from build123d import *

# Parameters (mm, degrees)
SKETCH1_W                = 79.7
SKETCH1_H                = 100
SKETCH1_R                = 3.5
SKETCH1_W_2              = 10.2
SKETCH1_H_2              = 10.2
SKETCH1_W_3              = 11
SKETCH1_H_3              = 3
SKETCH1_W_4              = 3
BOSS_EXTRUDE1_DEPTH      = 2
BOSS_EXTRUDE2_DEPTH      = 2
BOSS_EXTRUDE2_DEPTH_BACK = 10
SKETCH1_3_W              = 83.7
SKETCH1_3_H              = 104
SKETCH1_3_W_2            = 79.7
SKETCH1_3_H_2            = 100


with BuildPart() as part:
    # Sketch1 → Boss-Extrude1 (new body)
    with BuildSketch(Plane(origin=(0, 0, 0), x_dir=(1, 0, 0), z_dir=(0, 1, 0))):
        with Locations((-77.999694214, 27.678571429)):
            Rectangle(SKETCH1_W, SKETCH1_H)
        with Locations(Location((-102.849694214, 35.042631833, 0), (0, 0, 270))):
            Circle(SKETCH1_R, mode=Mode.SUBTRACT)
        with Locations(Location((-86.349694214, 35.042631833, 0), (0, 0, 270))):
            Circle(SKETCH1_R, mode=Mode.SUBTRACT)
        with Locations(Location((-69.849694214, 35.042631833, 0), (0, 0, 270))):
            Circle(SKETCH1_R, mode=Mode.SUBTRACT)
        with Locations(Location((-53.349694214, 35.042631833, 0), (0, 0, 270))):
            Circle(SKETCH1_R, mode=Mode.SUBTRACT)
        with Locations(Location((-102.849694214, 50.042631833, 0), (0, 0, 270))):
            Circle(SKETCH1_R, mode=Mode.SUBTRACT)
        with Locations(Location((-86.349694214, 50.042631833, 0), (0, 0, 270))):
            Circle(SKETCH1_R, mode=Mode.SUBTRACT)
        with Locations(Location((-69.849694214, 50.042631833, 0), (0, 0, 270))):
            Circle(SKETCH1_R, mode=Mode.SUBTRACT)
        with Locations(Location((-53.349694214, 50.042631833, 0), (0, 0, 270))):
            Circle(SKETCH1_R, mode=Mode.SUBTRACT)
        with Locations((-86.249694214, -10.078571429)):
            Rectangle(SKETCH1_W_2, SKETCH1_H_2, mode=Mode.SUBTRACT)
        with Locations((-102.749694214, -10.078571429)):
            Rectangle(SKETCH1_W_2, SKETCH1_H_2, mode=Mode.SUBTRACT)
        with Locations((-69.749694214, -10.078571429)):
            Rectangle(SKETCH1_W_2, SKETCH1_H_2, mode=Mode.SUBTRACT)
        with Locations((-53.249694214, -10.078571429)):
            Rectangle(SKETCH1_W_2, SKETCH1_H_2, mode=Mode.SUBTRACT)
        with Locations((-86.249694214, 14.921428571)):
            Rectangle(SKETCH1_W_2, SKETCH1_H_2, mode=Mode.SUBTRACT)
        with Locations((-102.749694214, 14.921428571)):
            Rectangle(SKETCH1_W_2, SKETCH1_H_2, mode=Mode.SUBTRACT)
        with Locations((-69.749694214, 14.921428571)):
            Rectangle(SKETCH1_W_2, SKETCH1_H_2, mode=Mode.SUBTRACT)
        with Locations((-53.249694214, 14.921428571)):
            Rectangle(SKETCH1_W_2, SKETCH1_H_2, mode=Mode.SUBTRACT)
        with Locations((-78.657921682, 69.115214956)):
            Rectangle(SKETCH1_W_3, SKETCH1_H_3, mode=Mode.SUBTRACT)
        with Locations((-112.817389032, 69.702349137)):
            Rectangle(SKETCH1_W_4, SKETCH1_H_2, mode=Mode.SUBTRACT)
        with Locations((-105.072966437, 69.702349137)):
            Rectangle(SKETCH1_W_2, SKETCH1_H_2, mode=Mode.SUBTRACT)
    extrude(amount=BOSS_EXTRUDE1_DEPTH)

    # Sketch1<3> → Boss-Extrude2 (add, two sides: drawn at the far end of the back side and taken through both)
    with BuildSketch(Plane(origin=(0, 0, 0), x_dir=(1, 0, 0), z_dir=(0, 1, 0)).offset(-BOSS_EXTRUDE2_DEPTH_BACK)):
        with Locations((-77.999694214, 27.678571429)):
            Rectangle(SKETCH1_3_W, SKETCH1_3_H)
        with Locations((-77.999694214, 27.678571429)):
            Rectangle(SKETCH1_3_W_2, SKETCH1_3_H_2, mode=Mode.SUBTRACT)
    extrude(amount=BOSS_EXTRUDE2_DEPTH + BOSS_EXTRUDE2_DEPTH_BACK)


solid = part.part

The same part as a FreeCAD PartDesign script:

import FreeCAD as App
import Part
import Sketcher

V = App.Vector

doc = App.newDocument("Part")
body = doc.addObject("PartDesign::Body", "Body")

sketch1 = doc.addObject("Sketcher::SketchObject", "Sketch")
body.addObject(sketch1)
sketch1.AttachmentSupport = (doc.XZ_Plane, [""])
sketch1.MapMode = "FlatFace"
sketch1.addGeometry([
    Part.LineSegment(V(-117.8, -77.7, 0), V(-117.8, 22.3, 0)),
    Part.LineSegment(V(-117.8, 22.3, 0), V(-38.1, 22.3, 0)),
    Part.LineSegment(V(-38.1, 22.3, 0), V(-38.1, -77.7, 0)),
    Part.LineSegment(V(-38.1, -77.7, 0), V(-117.8, -77.7, 0)),
    Part.LineSegment(V(-97.6, 15.2, 0), V(-107.8, 15.2, 0)),
    Part.LineSegment(V(-107.8, 15.2, 0), V(-107.8, 5, 0)),
    Part.LineSegment(V(-107.8, 5, 0), V(-97.6, 5, 0)),
    Part.LineSegment(V(-97.6, 5, 0), V(-97.6, 15.2, 0)),
    Part.LineSegment(V(-81.1, 15.2, 0), V(-91.3, 15.2, 0)),
    Part.LineSegment(V(-91.3, 15.2, 0), V(-91.3, 5, 0)),
    Part.LineSegment(V(-91.3, 5, 0), V(-81.1, 5, 0)),
    Part.LineSegment(V(-81.1, 5, 0), V(-81.1, 15.2, 0)),
    Part.LineSegment(V(-97.6, -9.8, 0), V(-107.8, -9.8, 0)),
    Part.LineSegment(V(-107.8, -9.8, 0), V(-107.8, -20, 0)),
    Part.LineSegment(V(-107.8, -20, 0), V(-97.6, -20, 0)),
    Part.LineSegment(V(-97.6, -20, 0), V(-97.6, -9.8, 0)),
    Part.LineSegment(V(-81.1, -9.8, 0), V(-91.3, -9.8, 0)),
    Part.LineSegment(V(-91.3, -9.8, 0), V(-91.3, -20, 0)),
    Part.LineSegment(V(-91.3, -20, 0), V(-81.1, -20, 0)),
    Part.LineSegment(V(-81.1, -20, 0), V(-81.1, -9.8, 0)),
    Part.LineSegment(V(-64.6, 15.2, 0), V(-74.8, 15.2, 0)),
    Part.LineSegment(V(-74.8, 15.2, 0), V(-74.8, 5, 0)),
    Part.LineSegment(V(-74.8, 5, 0), V(-64.6, 5, 0)),
    Part.LineSegment(V(-64.6, 5, 0), V(-64.6, 15.2, 0)),
    Part.LineSegment(V(-48.1, 15.2, 0), V(-58.3, 15.2, 0)),
    Part.LineSegment(V(-58.3, 15.2, 0), V(-58.3, 5, 0)),
    Part.LineSegment(V(-58.3, 5, 0), V(-48.1, 5, 0)),
    Part.LineSegment(V(-48.1, 5, 0), V(-48.1, 15.2, 0)),
    Part.LineSegment(V(-64.6, -9.8, 0), V(-74.8, -9.8, 0)),
    Part.LineSegment(V(-74.8, -9.8, 0), V(-74.8, -20, 0)),
    Part.LineSegment(V(-74.8, -20, 0), V(-64.6, -20, 0)),
    Part.LineSegment(V(-64.6, -20, 0), V(-64.6, -9.8, 0)),
    Part.LineSegment(V(-48.1, -9.8, 0), V(-58.3, -9.8, 0)),
    Part.LineSegment(V(-58.3, -9.8, 0), V(-58.3, -20, 0)),
    Part.LineSegment(V(-58.3, -20, 0), V(-48.1, -20, 0)),
    Part.LineSegment(V(-48.1, -20, 0), V(-48.1, -9.8, 0)),
    Part.Circle(V(-102.8, -35, 0), V(0, 0, 1), 3.5),
    Part.Circle(V(-102.8, -50, 0), V(0, 0, 1), 3.5),
    Part.Circle(V(-86.3, -35, 0), V(0, 0, 1), 3.5),
    Part.Circle(V(-86.3, -50, 0), V(0, 0, 1), 3.5),
    Part.LineSegment(V(-111.3, -64.6, 0), V(-114.3, -64.6, 0)),
    Part.LineSegment(V(-114.3, -64.6, 0), V(-114.3, -74.8, 0)),
    Part.LineSegment(V(-114.3, -74.8, 0), V(-111.3, -74.8, 0)),
    Part.LineSegment(V(-111.3, -74.8, 0), V(-111.3, -64.6, 0)),
    Part.LineSegment(V(-100, -64.6, 0), V(-110.2, -64.6, 0)),
    Part.LineSegment(V(-110.2, -64.6, 0), V(-110.2, -74.8, 0)),
    Part.LineSegment(V(-110.2, -74.8, 0), V(-100, -74.8, 0)),
    Part.LineSegment(V(-100, -74.8, 0), V(-100, -64.6, 0)),
    Part.Circle(V(-69.8, -35, 0), V(0, 0, 1), 3.5),
    Part.Circle(V(-69.8, -50, 0), V(0, 0, 1), 3.5),
    Part.Circle(V(-53.3, -35, 0), V(0, 0, 1), 3.5),
    Part.Circle(V(-53.3, -50, 0), V(0, 0, 1), 3.5),
    Part.LineSegment(V(-73.2, -67.6, 0), V(-84.2, -67.6, 0)),
    Part.LineSegment(V(-84.2, -67.6, 0), V(-84.2, -70.6, 0)),
    Part.LineSegment(V(-84.2, -70.6, 0), V(-73.2, -70.6, 0)),
    Part.LineSegment(V(-73.2, -70.6, 0), V(-73.2, -67.6, 0)),
], False)
sketch1.addConstraint([
    Sketcher.Constraint("Coincident", 0, 2, 1, 1),
    Sketcher.Constraint("Coincident", 1, 2, 2, 1),
    Sketcher.Constraint("Coincident", 2, 2, 3, 1),
    Sketcher.Constraint("Coincident", 3, 2, 0, 1),
    Sketcher.Constraint("Coincident", 4, 2, 5, 1),
    Sketcher.Constraint("Coincident", 5, 2, 6, 1),
    Sketcher.Constraint("Coincident", 6, 2, 7, 1),
    Sketcher.Constraint("Coincident", 7, 2, 4, 1),
    Sketcher.Constraint("Coincident", 8, 2, 9, 1),
    Sketcher.Constraint("Coincident", 9, 2, 10, 1),
    Sketcher.Constraint("Coincident", 10, 2, 11, 1),
    Sketcher.Constraint("Coincident", 11, 2, 8, 1),
    Sketcher.Constraint("Coincident", 12, 2, 13, 1),
    Sketcher.Constraint("Coincident", 13, 2, 14, 1),
    Sketcher.Constraint("Coincident", 14, 2, 15, 1),
    Sketcher.Constraint("Coincident", 15, 2, 12, 1),
    Sketcher.Constraint("Coincident", 16, 2, 17, 1),
    Sketcher.Constraint("Coincident", 17, 2, 18, 1),
    Sketcher.Constraint("Coincident", 18, 2, 19, 1),
    Sketcher.Constraint("Coincident", 19, 2, 16, 1),
    Sketcher.Constraint("Coincident", 20, 2, 21, 1),
    Sketcher.Constraint("Coincident", 21, 2, 22, 1),
    Sketcher.Constraint("Coincident", 22, 2, 23, 1),
    Sketcher.Constraint("Coincident", 23, 2, 20, 1),
    Sketcher.Constraint("Coincident", 24, 2, 25, 1),
    Sketcher.Constraint("Coincident", 25, 2, 26, 1),
    Sketcher.Constraint("Coincident", 26, 2, 27, 1),
    Sketcher.Constraint("Coincident", 27, 2, 24, 1),
    Sketcher.Constraint("Coincident", 28, 2, 29, 1),
    Sketcher.Constraint("Coincident", 29, 2, 30, 1),
    Sketcher.Constraint("Coincident", 30, 2, 31, 1),
    Sketcher.Constraint("Coincident", 31, 2, 28, 1),
    Sketcher.Constraint("Coincident", 32, 2, 33, 1),
    Sketcher.Constraint("Coincident", 33, 2, 34, 1),
    Sketcher.Constraint("Coincident", 34, 2, 35, 1),
    Sketcher.Constraint("Coincident", 35, 2, 32, 1),
    Sketcher.Constraint("Coincident", 40, 2, 41, 1),
    Sketcher.Constraint("Coincident", 41, 2, 42, 1),
    Sketcher.Constraint("Coincident", 42, 2, 43, 1),
    Sketcher.Constraint("Coincident", 43, 2, 40, 1),
    Sketcher.Constraint("Coincident", 44, 2, 45, 1),
    Sketcher.Constraint("Coincident", 45, 2, 46, 1),
    Sketcher.Constraint("Coincident", 46, 2, 47, 1),
    Sketcher.Constraint("Coincident", 47, 2, 44, 1),
    Sketcher.Constraint("Coincident", 52, 2, 53, 1),
    Sketcher.Constraint("Coincident", 53, 2, 54, 1),
    Sketcher.Constraint("Coincident", 54, 2, 55, 1),
    Sketcher.Constraint("Coincident", 55, 2, 52, 1),
    Sketcher.Constraint("Vertical", 0),
    Sketcher.Constraint("Horizontal", 1),
    Sketcher.Constraint("Vertical", 2),
    Sketcher.Constraint("Horizontal", 3),
    Sketcher.Constraint("Horizontal", 4),
    Sketcher.Constraint("Vertical", 5),
    Sketcher.Constraint("Horizontal", 6),
    Sketcher.Constraint("Vertical", 7),
    Sketcher.Constraint("Horizontal", 8),
    Sketcher.Constraint("Vertical", 9),
    Sketcher.Constraint("Horizontal", 10),
    Sketcher.Constraint("Vertical", 11),
    Sketcher.Constraint("Horizontal", 12),
    Sketcher.Constraint("Vertical", 13),
    Sketcher.Constraint("Horizontal", 14),
    Sketcher.Constraint("Vertical", 15),
    Sketcher.Constraint("Horizontal", 16),
    Sketcher.Constraint("Vertical", 17),
    Sketcher.Constraint("Horizontal", 18),
    Sketcher.Constraint("Vertical", 19),
    Sketcher.Constraint("Horizontal", 20),
    Sketcher.Constraint("Vertical", 21),
    Sketcher.Constraint("Horizontal", 22),
    Sketcher.Constraint("Vertical", 23),
    Sketcher.Constraint("Horizontal", 24),
    Sketcher.Constraint("Vertical", 25),
    Sketcher.Constraint("Horizontal", 26),
    Sketcher.Constraint("Vertical", 27),
    Sketcher.Constraint("Horizontal", 28),
    Sketcher.Constraint("Vertical", 29),
    Sketcher.Constraint("Horizontal", 30),
    Sketcher.Constraint("Vertical", 31),
    Sketcher.Constraint("Horizontal", 32),
    Sketcher.Constraint("Vertical", 33),
    Sketcher.Constraint("Horizontal", 34),
    Sketcher.Constraint("Vertical", 35),
    Sketcher.Constraint("Horizontal", 40),
    Sketcher.Constraint("Vertical", 41),
    Sketcher.Constraint("Horizontal", 42),
    Sketcher.Constraint("Vertical", 43),
    Sketcher.Constraint("Horizontal", 44),
    Sketcher.Constraint("Vertical", 45),
    Sketcher.Constraint("Horizontal", 46),
    Sketcher.Constraint("Vertical", 47),
    Sketcher.Constraint("Horizontal", 52),
    Sketcher.Constraint("Vertical", 53),
    Sketcher.Constraint("Horizontal", 54),
    Sketcher.Constraint("Vertical", 55),
    Sketcher.Constraint("Equal", 36, 37),
    Sketcher.Constraint("Equal", 37, 38),
    Sketcher.Constraint("Equal", 38, 39),
    Sketcher.Constraint("Equal", 39, 48),
    Sketcher.Constraint("Equal", 48, 49),
    Sketcher.Constraint("Equal", 49, 50),
    Sketcher.Constraint("Equal", 50, 51),
    Sketcher.Constraint("Horizontal", 36, 3, 38, 3),
    Sketcher.Constraint("Horizontal", 37, 3, 39, 3),
    Sketcher.Constraint("Horizontal", 38, 3, 48, 3),
    Sketcher.Constraint("Horizontal", 39, 3, 49, 3),
    Sketcher.Constraint("Horizontal", 48, 3, 50, 3),
    Sketcher.Constraint("Horizontal", 49, 3, 51, 3),
    Sketcher.Constraint("Horizontal", 7, 2, 8, 2),
    Sketcher.Constraint("Horizontal", 6, 2, 9, 2),
    Sketcher.Constraint("Horizontal", 15, 2, 16, 2),
    Sketcher.Constraint("Horizontal", 14, 2, 17, 2),
    Sketcher.Constraint("Horizontal", 11, 2, 20, 2),
    Sketcher.Constraint("Horizontal", 10, 2, 21, 2),
    Sketcher.Constraint("Horizontal", 23, 2, 24, 2),
    Sketcher.Constraint("Horizontal", 22, 2, 25, 2),
    Sketcher.Constraint("Horizontal", 19, 2, 28, 2),
    Sketcher.Constraint("Horizontal", 18, 2, 29, 2),
    Sketcher.Constraint("Horizontal", 31, 2, 32, 2),
    Sketcher.Constraint("Horizontal", 30, 2, 33, 2),
    Sketcher.Constraint("Horizontal", 43, 2, 44, 2),
    Sketcher.Constraint("Horizontal", 42, 2, 45, 2),
    Sketcher.Constraint("Vertical", 36, 3, 37, 3),
    Sketcher.Constraint("Vertical", 38, 3, 39, 3),
    Sketcher.Constraint("Vertical", 48, 3, 49, 3),
    Sketcher.Constraint("Vertical", 50, 3, 51, 3),
    Sketcher.Constraint("Vertical", 5, 2, 12, 2),
    Sketcher.Constraint("Vertical", 7, 2, 14, 2),
    Sketcher.Constraint("Vertical", 9, 2, 16, 2),
    Sketcher.Constraint("Vertical", 11, 2, 18, 2),
    Sketcher.Constraint("Vertical", 21, 2, 28, 2),
    Sketcher.Constraint("Vertical", 23, 2, 30, 2),
    Sketcher.Constraint("Vertical", 25, 2, 32, 2),
    Sketcher.Constraint("Vertical", 27, 2, 34, 2),
    Sketcher.Constraint("Equal", 6, 8),
    Sketcher.Constraint("Equal", 18, 20),
    Sketcher.Constraint("Equal", 22, 24),
    Sketcher.Constraint("Equal", 34, 44),
    Sketcher.Constraint("Equal", 46, 5),
    Sketcher.Constraint("Equal", 11, 13),
    Sketcher.Constraint("Equal", 35, 41),
    Sketcher.Constraint("Equal", 42, 53),
    Sketcher.Constraint("Diameter", 36, 7.0),
    Sketcher.Constraint("DistanceX", 40, 2, 40, 1, 3.0),
    Sketcher.Constraint("DistanceX", 52, 2, 52, 1, 11.0),
    Sketcher.Constraint("DistanceY", 0, 1, 0, 2, 100.0),
    Sketcher.Constraint("DistanceX", 1, 1, 1, 2, 79.7),
    Sketcher.Constraint("DistanceX", 4, 2, 4, 1, 10.2),
    Sketcher.Constraint("DistanceY", 37, 3, 36, 3, 15.0),
    Sketcher.Constraint("DistanceX", 36, 3, 48, 3, 33.0),
    Sketcher.Constraint("DistanceX", 38, 3, 50, 3, 33.0),
    Sketcher.Constraint("DistanceX", 0, 2, 36, 3, 15.0),
    Sketcher.Constraint("DistanceX", 0, 2, 4, 2, 10.0),
    Sketcher.Constraint("DistanceY", 12, 2, 4, 2, 25.0),
    Sketcher.Constraint("DistanceX", 17, 2, 38, 3, 5.0),
    Sketcher.Constraint("DistanceX", 26, 2, 1, 2, 10.0),
    Sketcher.Constraint("DistanceX", 29, 2, 48, 3, 5.0),
    Sketcher.Constraint("DistanceX", 33, 2, 50, 3, 5.0),
    Sketcher.Constraint("DistanceY", 36, 3, -1, 1, 35.042632),
    Sketcher.Constraint("DistanceY", -1, 1, 0, 2, 22.321429),
    Sketcher.Constraint("DistanceY", -1, 1, 4, 2, 15.178571),
    Sketcher.Constraint("DistanceX", 40, 2, -1, 1, 114.317389),
    Sketcher.Constraint("DistanceY", 40, 2, -1, 1, 64.602349),
    Sketcher.Constraint("DistanceX", 52, 2, -1, 1, 84.157922),
    Sketcher.Constraint("DistanceX", 36, 3, -1, 1, 102.849694),
    Sketcher.Constraint("DistanceX", 44, 2, -1, 1, 110.172966),
    Sketcher.Constraint("DistanceY", 52, 2, -1, 1, 67.615215),
])
pad1 = doc.addObject("PartDesign::Pad", "Pad")
body.addObject(pad1)
pad1.Profile = sketch1
pad1.Length = 2
pad1.Reversed = True

sketch2 = doc.addObject("Sketcher::SketchObject", "Sketch001")
body.addObject(sketch2)
sketch2.AttachmentSupport = (doc.XZ_Plane, [""])
sketch2.MapMode = "FlatFace"
sketch2.addGeometry([
    Part.LineSegment(V(-120, -80, 0), V(-120, 24, 0)),
    Part.LineSegment(V(-120, 24, 0), V(-36, 24, 0)),
    Part.LineSegment(V(-36, 24, 0), V(-36, -80, 0)),
    Part.LineSegment(V(-36, -80, 0), V(-120, -80, 0)),
    Part.LineSegment(V(-38, 22, 0), V(-118, 22, 0)),
    Part.LineSegment(V(-118, 22, 0), V(-118, -78, 0)),
    Part.LineSegment(V(-118, -78, 0), V(-38, -78, 0)),
    Part.LineSegment(V(-38, -78, 0), V(-38, 22, 0)),
], False)
sketch2.addConstraint([
    Sketcher.Constraint("Coincident", 0, 2, 1, 1),
    Sketcher.Constraint("Coincident", 1, 2, 2, 1),
    Sketcher.Constraint("Coincident", 2, 2, 3, 1),
    Sketcher.Constraint("Coincident", 3, 2, 0, 1),
    Sketcher.Constraint("Coincident", 4, 2, 5, 1),
    Sketcher.Constraint("Coincident", 5, 2, 6, 1),
    Sketcher.Constraint("Coincident", 6, 2, 7, 1),
    Sketcher.Constraint("Coincident", 7, 2, 4, 1),
    Sketcher.Constraint("Vertical", 0),
    Sketcher.Constraint("Horizontal", 1),
    Sketcher.Constraint("Vertical", 2),
    Sketcher.Constraint("Horizontal", 3),
    Sketcher.Constraint("Horizontal", 4),
    Sketcher.Constraint("Vertical", 5),
    Sketcher.Constraint("Horizontal", 6),
    Sketcher.Constraint("Vertical", 7),
    Sketcher.Constraint("DistanceY", 0, 1, 0, 2, 104.0),
    Sketcher.Constraint("DistanceY", 5, 2, 5, 1, 100.0),
    Sketcher.Constraint("DistanceX", 1, 1, 1, 2, 83.7),
    Sketcher.Constraint("DistanceX", 4, 2, 4, 1, 79.7),
    Sketcher.Constraint("DistanceX", 0, 2, 4, 2, 2.0),
    Sketcher.Constraint("DistanceY", 4, 2, 0, 2, 2.0),
    Sketcher.Constraint("DistanceY", -1, 1, 0, 2, 24.321429),
    Sketcher.Constraint("DistanceX", 0, 2, -1, 1, 119.849694),
])
pad2 = doc.addObject("PartDesign::Pad", "Pad001")
body.addObject(pad2)
pad2.Profile = sketch2
pad2.Type = "TwoLengths"
pad2.Length = 2
pad2.Length2 = 10
pad2.Reversed = True

doc.recompute()
